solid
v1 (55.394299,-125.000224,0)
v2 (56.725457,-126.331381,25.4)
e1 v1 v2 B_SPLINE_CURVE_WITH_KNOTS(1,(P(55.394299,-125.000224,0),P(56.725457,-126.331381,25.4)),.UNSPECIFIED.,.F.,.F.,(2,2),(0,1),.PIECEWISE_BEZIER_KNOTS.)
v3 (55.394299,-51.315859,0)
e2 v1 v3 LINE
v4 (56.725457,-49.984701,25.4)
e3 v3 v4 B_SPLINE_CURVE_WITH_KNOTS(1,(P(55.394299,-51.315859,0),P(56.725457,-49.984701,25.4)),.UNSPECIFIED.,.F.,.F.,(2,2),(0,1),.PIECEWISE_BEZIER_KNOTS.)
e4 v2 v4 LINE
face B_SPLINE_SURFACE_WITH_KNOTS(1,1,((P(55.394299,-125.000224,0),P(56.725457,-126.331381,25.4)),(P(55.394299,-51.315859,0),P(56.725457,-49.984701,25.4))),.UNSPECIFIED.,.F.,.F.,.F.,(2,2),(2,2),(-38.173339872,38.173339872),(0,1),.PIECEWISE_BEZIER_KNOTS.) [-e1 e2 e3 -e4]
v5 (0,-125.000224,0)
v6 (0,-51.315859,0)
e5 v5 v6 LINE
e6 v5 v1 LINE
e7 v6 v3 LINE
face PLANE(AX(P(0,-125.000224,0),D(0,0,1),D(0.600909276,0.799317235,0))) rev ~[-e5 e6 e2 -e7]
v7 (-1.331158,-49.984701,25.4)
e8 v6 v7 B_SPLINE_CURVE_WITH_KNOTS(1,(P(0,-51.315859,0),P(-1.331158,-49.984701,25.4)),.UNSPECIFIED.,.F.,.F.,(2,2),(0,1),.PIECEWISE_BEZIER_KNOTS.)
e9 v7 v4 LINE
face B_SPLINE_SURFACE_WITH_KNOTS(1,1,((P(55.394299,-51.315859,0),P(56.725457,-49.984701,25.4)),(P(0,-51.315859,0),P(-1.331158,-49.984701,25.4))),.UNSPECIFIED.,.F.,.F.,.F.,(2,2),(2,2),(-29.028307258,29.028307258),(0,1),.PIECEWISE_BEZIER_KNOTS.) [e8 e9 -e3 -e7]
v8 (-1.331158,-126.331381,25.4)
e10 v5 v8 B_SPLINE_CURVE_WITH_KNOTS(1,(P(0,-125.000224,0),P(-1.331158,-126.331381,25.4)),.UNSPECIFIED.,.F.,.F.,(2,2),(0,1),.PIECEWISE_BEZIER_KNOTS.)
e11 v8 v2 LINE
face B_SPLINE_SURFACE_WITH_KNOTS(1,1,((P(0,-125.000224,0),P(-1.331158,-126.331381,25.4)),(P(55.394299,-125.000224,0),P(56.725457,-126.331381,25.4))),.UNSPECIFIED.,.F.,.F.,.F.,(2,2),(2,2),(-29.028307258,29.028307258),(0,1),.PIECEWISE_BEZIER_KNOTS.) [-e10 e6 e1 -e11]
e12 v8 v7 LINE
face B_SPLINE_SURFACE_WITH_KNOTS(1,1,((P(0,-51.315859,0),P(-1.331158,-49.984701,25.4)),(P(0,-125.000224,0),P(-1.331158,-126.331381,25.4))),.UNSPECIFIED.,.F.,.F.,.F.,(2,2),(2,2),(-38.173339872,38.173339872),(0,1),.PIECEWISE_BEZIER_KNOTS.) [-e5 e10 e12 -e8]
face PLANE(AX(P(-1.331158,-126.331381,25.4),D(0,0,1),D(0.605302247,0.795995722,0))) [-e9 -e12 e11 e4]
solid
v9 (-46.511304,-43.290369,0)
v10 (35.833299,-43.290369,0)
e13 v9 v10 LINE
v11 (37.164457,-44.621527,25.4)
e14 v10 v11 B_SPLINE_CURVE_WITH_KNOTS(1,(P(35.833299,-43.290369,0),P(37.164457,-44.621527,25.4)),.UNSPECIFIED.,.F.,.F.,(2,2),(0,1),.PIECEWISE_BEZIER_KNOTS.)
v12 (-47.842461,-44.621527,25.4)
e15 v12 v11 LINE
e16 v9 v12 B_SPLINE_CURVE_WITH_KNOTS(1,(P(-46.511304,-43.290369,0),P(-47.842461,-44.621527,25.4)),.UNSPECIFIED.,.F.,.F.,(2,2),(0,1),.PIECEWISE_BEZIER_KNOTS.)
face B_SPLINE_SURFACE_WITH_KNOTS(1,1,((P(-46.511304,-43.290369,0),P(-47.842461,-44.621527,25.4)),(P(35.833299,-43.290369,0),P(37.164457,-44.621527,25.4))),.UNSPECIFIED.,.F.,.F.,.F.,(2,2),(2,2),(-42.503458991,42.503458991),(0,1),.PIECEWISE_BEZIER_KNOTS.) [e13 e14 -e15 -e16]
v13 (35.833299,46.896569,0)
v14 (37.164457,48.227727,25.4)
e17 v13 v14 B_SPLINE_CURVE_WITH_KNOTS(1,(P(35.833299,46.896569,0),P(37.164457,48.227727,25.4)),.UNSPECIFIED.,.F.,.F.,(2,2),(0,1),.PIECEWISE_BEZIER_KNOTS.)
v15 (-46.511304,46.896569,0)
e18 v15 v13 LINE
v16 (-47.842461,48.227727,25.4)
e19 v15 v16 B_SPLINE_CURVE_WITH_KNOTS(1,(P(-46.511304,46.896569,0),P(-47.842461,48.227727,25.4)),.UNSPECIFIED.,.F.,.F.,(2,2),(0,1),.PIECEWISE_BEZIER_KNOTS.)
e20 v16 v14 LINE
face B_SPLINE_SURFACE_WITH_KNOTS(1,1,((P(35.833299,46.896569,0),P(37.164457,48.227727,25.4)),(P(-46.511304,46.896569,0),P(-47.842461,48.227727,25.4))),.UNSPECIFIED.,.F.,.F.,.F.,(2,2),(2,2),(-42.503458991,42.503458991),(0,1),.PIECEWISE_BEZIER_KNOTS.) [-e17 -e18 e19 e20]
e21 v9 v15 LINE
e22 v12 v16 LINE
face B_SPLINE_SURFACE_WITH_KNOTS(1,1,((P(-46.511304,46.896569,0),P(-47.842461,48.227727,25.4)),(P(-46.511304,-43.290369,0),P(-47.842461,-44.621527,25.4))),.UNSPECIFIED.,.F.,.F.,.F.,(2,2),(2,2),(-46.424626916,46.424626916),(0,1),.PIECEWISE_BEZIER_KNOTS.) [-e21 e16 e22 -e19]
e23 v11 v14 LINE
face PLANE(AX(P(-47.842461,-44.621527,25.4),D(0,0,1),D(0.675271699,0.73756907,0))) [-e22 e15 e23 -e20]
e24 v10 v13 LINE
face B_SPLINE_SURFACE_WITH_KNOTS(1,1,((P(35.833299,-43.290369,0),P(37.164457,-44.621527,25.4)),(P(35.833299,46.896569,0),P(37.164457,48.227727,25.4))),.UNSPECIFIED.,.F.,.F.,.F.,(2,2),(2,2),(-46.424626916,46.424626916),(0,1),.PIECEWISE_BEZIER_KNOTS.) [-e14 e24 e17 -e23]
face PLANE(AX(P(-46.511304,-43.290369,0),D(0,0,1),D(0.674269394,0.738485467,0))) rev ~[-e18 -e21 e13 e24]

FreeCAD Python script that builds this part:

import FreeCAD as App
import Part
import Sketcher
from FreeCAD import Vector
Q = App.Units.Quantity


def add_polygon(sketch, points):
    """Adds a closed chain of lines whose ends are joined by coincident constraints."""
    first, n = sketch.GeometryCount, len(points)
    for a, b in zip(points, points[1:] + points[:1]):
        sketch.addGeometry(Part.LineSegment(App.Vector(*a, 0), App.Vector(*b, 0)), False)
    for i in range(n):
        sketch.addConstraint(Sketcher.Constraint("Coincident", first + i, 2, first + (i + 1) % n, 1))

doc = App.newDocument("Part")
body = doc.addObject("PartDesign::Body", "Body")

sketch1 = body.newObject("Sketcher::SketchObject", "Sketch")
sketch1.AttachmentSupport = (doc.getObject("XY_Plane"), [""])
sketch1.MapMode = "FlatFace"
add_polygon(sketch1, [(-46.511304, 46.896569), (-46.511304, -43.290369), (35.833299, -43.290369), (35.833299, 46.896569)])
sketch1.addConstraint([
    Sketcher.Constraint("Vertical", 0),
    Sketcher.Constraint("Horizontal", 1),
    Sketcher.Constraint("Vertical", 2),
    Sketcher.Constraint("Horizontal", 3),
    Sketcher.Constraint("DistanceY", 0, 2, 0, 1, 90.186939),
    Sketcher.Constraint("DistanceX", -1, 1, 1, 2, 35.833299),
    Sketcher.Constraint("DistanceX", 1, 1, 1, 2, 82.344603),
    Sketcher.Constraint("DistanceY", 0, 2, -1, 1, 43.290369),
])
pad1 = body.newObject("PartDesign::Pad", "Pad")
pad1.Profile = sketch1
pad1.Length = Q("1 in")
pad1.TaperAngle = 3
body2 = doc.addObject("PartDesign::Body", "Body001")

sketch2 = body2.newObject("Sketcher::SketchObject", "Sketch001")
sketch2.AttachmentSupport = (doc.getObject("XY_Plane001"), [""])
sketch2.MapMode = "FlatFace"
add_polygon(sketch2, [(0, -51.315859), (0, -125.000224), (55.394299, -125.000224), (55.394299, -51.315859)])
sketch2.addConstraint([
    Sketcher.Constraint("Vertical", 0),
    Sketcher.Constraint("Horizontal", 1),
    Sketcher.Constraint("Vertical", 2),
    Sketcher.Constraint("Horizontal", 3),
    Sketcher.Constraint("PointOnObject", 0, 2, -2),
    Sketcher.Constraint("DistanceX", 1, 1, 1, 2, 55.394299),
    Sketcher.Constraint("DistanceY", 0, 2, 0, 1, 73.684365),
    Sketcher.Constraint("DistanceY", 2, 2, -1, 1, 51.315859),
])
pad2 = body2.newObject("PartDesign::Pad", "Pad001")
pad2.Profile = sketch2
pad2.Length = Q("1 in")
pad2.TaperAngle = 3

doc.recompute()
